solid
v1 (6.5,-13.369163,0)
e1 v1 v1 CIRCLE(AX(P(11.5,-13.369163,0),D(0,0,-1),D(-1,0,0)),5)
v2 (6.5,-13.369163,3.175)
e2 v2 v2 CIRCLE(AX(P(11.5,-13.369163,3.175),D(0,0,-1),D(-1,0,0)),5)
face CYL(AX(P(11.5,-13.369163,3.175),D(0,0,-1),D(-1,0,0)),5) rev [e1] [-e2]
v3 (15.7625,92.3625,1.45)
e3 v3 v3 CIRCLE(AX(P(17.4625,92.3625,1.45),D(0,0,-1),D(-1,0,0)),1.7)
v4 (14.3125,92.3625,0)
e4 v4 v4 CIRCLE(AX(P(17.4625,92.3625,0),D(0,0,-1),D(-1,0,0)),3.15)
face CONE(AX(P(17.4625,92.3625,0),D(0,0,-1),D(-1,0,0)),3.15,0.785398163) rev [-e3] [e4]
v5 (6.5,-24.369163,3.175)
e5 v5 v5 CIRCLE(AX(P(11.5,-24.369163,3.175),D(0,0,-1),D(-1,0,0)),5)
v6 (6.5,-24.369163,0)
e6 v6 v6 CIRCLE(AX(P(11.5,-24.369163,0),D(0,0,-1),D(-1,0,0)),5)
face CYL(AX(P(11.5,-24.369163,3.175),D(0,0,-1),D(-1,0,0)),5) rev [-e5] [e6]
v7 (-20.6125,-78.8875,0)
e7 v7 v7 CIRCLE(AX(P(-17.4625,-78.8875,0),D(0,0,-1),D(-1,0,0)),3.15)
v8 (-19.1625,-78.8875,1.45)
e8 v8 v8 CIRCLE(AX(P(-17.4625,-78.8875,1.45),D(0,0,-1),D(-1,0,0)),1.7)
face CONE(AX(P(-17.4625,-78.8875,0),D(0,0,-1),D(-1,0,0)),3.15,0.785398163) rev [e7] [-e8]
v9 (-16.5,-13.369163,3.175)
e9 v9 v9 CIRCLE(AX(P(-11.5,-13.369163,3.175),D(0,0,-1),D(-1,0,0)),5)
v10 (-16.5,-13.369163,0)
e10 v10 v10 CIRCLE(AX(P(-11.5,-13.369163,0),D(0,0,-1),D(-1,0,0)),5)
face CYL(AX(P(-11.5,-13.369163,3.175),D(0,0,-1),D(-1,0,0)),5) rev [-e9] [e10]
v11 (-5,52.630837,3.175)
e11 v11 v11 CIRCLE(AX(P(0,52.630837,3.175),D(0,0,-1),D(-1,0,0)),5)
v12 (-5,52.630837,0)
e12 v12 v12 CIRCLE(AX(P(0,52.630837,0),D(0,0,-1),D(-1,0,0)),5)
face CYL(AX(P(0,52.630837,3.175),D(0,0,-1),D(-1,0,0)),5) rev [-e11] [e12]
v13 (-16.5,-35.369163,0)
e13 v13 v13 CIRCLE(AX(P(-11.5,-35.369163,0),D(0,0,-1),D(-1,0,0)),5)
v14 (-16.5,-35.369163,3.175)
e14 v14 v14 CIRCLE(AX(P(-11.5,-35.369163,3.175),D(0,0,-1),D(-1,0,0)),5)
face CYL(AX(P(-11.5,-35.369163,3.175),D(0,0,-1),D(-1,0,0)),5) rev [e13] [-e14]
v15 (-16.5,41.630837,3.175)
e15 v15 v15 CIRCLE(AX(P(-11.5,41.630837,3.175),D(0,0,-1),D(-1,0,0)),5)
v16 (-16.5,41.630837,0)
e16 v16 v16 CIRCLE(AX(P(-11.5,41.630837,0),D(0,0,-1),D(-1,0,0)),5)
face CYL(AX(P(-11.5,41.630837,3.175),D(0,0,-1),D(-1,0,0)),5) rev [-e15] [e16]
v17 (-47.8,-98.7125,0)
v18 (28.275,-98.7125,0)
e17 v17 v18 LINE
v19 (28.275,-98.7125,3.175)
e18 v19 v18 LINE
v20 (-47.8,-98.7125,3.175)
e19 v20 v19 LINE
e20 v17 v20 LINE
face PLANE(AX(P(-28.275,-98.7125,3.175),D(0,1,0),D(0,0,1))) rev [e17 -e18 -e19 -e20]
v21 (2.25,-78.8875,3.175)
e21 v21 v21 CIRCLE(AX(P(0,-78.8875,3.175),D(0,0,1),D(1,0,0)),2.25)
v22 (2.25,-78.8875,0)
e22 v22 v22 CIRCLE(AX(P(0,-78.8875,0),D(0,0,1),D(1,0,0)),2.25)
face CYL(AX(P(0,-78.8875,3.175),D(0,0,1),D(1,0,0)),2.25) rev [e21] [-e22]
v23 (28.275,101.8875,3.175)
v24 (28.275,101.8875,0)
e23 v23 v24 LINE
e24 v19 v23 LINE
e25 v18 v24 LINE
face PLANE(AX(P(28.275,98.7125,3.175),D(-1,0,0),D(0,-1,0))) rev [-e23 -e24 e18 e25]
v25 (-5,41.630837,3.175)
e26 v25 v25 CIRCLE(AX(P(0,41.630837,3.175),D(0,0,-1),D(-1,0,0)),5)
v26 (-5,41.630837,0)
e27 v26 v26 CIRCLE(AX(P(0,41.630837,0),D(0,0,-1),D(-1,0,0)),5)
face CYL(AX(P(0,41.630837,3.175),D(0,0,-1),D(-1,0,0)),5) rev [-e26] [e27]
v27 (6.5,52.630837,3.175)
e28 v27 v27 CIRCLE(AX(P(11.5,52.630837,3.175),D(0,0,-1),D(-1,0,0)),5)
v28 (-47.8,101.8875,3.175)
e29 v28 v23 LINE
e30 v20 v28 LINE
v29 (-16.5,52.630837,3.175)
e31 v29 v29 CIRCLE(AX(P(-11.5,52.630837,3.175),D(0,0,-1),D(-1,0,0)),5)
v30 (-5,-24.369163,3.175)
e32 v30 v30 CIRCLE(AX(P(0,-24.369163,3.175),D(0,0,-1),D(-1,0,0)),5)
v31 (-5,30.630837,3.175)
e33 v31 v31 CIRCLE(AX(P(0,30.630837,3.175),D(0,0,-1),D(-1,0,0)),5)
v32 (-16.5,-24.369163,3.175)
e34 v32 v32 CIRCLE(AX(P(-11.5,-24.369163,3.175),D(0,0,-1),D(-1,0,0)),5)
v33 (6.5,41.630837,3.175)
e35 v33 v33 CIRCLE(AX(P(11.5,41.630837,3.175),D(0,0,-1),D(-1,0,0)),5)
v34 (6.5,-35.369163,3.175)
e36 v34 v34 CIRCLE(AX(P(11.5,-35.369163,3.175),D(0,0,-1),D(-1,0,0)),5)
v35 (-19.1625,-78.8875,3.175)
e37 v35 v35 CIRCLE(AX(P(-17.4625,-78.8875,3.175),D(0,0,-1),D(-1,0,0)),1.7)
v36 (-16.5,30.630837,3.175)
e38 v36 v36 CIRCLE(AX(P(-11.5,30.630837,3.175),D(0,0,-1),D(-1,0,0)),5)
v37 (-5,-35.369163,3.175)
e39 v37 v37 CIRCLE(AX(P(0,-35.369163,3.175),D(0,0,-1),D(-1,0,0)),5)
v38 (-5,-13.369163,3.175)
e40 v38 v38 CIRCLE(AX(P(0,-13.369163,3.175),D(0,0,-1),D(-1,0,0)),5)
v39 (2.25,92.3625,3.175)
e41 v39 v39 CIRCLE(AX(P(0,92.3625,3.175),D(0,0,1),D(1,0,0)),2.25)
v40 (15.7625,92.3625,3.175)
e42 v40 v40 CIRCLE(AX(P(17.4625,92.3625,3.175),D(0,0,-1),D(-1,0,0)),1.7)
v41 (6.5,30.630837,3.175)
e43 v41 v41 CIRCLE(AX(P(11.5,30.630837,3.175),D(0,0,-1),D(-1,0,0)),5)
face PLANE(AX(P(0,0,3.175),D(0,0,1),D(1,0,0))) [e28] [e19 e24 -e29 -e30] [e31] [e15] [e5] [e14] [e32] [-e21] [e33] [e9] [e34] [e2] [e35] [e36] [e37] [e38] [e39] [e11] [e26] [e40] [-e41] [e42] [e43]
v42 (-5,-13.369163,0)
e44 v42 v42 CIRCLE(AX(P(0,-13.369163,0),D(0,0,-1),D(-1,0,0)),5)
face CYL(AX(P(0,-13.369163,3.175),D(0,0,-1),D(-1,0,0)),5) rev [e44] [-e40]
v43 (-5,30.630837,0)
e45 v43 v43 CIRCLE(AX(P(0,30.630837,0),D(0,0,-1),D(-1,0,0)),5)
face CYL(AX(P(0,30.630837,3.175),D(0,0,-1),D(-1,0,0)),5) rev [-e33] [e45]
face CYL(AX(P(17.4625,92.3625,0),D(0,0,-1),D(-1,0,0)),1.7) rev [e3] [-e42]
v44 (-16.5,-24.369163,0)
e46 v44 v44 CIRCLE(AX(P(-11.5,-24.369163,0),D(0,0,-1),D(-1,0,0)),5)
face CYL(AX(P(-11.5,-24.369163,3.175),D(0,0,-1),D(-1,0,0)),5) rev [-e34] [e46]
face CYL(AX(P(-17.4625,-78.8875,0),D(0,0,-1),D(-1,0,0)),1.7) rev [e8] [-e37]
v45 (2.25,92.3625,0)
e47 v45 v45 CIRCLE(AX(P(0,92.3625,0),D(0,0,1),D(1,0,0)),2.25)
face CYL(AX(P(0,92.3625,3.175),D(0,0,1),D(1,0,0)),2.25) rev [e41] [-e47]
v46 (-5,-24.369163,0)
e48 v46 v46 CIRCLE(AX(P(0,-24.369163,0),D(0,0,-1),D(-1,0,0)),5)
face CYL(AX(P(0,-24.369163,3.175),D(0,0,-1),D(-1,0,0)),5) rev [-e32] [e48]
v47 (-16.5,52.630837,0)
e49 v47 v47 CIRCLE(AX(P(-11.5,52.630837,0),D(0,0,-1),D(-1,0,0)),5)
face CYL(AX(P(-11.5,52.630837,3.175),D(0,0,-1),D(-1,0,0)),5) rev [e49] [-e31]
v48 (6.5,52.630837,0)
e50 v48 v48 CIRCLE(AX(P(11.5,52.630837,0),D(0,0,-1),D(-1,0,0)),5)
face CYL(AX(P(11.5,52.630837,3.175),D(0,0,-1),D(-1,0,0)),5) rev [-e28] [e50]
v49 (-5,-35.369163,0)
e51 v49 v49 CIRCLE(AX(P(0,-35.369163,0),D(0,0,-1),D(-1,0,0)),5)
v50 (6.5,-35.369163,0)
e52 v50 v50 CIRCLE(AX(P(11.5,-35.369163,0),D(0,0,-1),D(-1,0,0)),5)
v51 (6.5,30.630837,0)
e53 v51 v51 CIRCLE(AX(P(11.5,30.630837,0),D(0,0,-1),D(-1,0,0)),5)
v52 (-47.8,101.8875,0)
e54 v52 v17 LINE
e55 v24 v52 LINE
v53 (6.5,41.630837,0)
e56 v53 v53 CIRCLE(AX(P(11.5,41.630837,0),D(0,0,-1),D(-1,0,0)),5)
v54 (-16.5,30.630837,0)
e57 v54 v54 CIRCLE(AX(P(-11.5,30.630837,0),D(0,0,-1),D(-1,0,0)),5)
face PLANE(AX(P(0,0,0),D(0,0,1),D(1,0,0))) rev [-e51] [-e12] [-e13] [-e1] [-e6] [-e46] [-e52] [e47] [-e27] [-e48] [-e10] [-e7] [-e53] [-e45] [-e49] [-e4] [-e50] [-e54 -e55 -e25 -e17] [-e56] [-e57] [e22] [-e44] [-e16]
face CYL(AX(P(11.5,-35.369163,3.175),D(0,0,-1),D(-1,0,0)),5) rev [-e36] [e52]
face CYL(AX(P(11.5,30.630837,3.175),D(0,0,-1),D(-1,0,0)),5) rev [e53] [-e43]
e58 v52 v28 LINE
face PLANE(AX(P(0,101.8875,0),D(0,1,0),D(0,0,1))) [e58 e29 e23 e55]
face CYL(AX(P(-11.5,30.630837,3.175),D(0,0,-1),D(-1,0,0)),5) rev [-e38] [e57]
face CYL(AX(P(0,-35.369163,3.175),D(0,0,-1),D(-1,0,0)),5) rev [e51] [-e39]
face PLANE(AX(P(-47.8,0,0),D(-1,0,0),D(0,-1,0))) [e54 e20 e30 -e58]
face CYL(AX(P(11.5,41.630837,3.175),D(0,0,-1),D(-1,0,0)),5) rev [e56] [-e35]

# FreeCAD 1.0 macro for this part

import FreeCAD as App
import Part
import Sketcher

V = App.Vector

doc = App.newDocument("Part")
body = doc.addObject("PartDesign::Body", "Body")

sketch1 = body.newObject("Sketcher::SketchObject", "Sketch")
sketch1.AttachmentSupport = (doc.getObject("XY_Plane"), [""])
sketch1.MapMode = "FlatFace"
sketch1.addGeometry([
    Part.LineSegment(V(-28, 99, 0), V(-28, -99, 0)),
    Part.LineSegment(V(-28, -99, 0), V(28, -99, 0)),
    Part.LineSegment(V(28, -99, 0), V(28, 99, 0)),
    Part.LineSegment(V(28, 99, 0), V(-28, 99, 0)),
], False)
sketch1.addConstraint([
    Sketcher.Constraint("Coincident", 0, 2, 1, 1),
    Sketcher.Constraint("Coincident", 1, 2, 2, 1),
    Sketcher.Constraint("Coincident", 2, 2, 3, 1),
    Sketcher.Constraint("Coincident", 3, 2, 0, 1),
    Sketcher.Constraint("Vertical", 0),
    Sketcher.Constraint("Horizontal", 1),
    Sketcher.Constraint("Vertical", 2),
    Sketcher.Constraint("Horizontal", 3),
    Sketcher.Constraint("Symmetric", 0, 2, 2, 2, -1, 1),
    Sketcher.Constraint("DistanceX", 1, 1, 1, 2, 56.55),
    Sketcher.Constraint("DistanceY", 0, 2, 0, 1, 197.425),
])
pad1 = body.newObject("PartDesign::Pad", "Pad")
pad1.Profile = sketch1
pad1.Length = 3.175

sketch2 = body.newObject("Sketcher::SketchObject", "Sketch001")
sketch2.AttachmentSupport = (doc.getObject("XY_Plane"), [""])
sketch2.MapMode = "FlatFace"
sketch2.addGeometry([
    Part.Circle(V(12, 31, 0), V(0, 0, 1), 5),
    Part.Circle(V(12, 53, 0), V(0, 0, 1), 5),
    Part.Circle(V(12, 42, 0), V(0, 0, 1), 5),
    Part.Circle(V(0, 53, 0), V(0, 0, 1), 5),
    Part.Circle(V(0, 42, 0), V(0, 0, 1), 5),
    Part.Circle(V(0, 31, 0), V(0, 0, 1), 5),
    Part.Circle(V(-12, 31, 0), V(0, 0, 1), 5),
    Part.Circle(V(-12, 42, 0), V(0, 0, 1), 5),
    Part.Circle(V(-12, 53, 0), V(0, 0, 1), 5),
    Part.Circle(V(12, -35, 0), V(0, 0, 1), 5),
    Part.Circle(V(12, -13, 0), V(0, 0, 1), 5),
    Part.Circle(V(12, -24, 0), V(0, 0, 1), 5),
    Part.Circle(V(0, -13, 0), V(0, 0, 1), 5),
    Part.Circle(V(0, -24, 0), V(0, 0, 1), 5),
    Part.Circle(V(0, -35, 0), V(0, 0, 1), 5),
    Part.Circle(V(-12, -35, 0), V(0, 0, 1), 5),
    Part.Circle(V(-12, -13, 0), V(0, 0, 1), 5),
    Part.Circle(V(-12, -24, 0), V(0, 0, 1), 5),
], False)
sketch2.addConstraint([
    Sketcher.Constraint("Equal", 0, 1),
    Sketcher.Constraint("Equal", 1, 2),
    Sketcher.Constraint("Equal", 2, 3),
    Sketcher.Constraint("Equal", 3, 4),
    Sketcher.Constraint("Equal", 4, 5),
    Sketcher.Constraint("Equal", 5, 6),
    Sketcher.Constraint("Equal", 6, 7),
    Sketcher.Constraint("Equal", 7, 8),
    Sketcher.Constraint("Equal", 8, 9),
    Sketcher.Constraint("Equal", 9, 10),
    Sketcher.Constraint("Equal", 10, 11),
    Sketcher.Constraint("Equal", 11, 12),
    Sketcher.Constraint("Equal", 12, 13),
    Sketcher.Constraint("Equal", 13, 14),
    Sketcher.Constraint("Equal", 14, 15),
    Sketcher.Constraint("Equal", 15, 16),
    Sketcher.Constraint("Equal", 16, 17),
    Sketcher.Constraint("Symmetric", 0, 3, 6, 3, -2),
    Sketcher.Constraint("Symmetric", 2, 3, 7, 3, -2),
    Sketcher.Constraint("Symmetric", 1, 3, 8, 3, -2),
    Sketcher.Constraint("Symmetric", 9, 3, 15, 3, -2),
    Sketcher.Constraint("Symmetric", 10, 3, 16, 3, -2),
    Sketcher.Constraint("Symmetric", 11, 3, 17, 3, -2),
    Sketcher.Constraint("PointOnObject", 3, 3, -2),
    Sketcher.Constraint("PointOnObject", 4, 3, -2),
    Sketcher.Constraint("PointOnObject", 5, 3, -2),
    Sketcher.Constraint("PointOnObject", 12, 3, -2),
    Sketcher.Constraint("PointOnObject", 13, 3, -2),
    Sketcher.Constraint("PointOnObject", 14, 3, -2),
    Sketcher.Constraint("Horizontal", 1, 3, 3, 3),
    Sketcher.Constraint("Horizontal", 2, 3, 4, 3),
    Sketcher.Constraint("Horizontal", 0, 3, 5, 3),
    Sketcher.Constraint("Horizontal", 10, 3, 12, 3),
    Sketcher.Constraint("Horizontal", 11, 3, 13, 3),
    Sketcher.Constraint("Horizontal", 9, 3, 14, 3),
    Sketcher.Constraint("Vertical", 0, 3, 1, 3),
    Sketcher.Constraint("Vertical", 1, 3, 2, 3),
    Sketcher.Constraint("Vertical", 2, 3, 9, 3),
    Sketcher.Constraint("Vertical", 9, 3, 10, 3),
    Sketcher.Constraint("Vertical", 10, 3, 11, 3),
    Sketcher.Constraint("Diameter", 0, 10.0),
    Sketcher.Constraint("DistanceY", 0, 3, 1, 3, 22.0),
    Sketcher.Constraint("DistanceY", 2, 3, 1, 3, 11.0),
    Sketcher.Constraint("DistanceX", 6, 3, 0, 3, 23.0),
    Sketcher.Constraint("DistanceY", 9, 3, 0, 3, 66.0),
    Sketcher.Constraint("DistanceY", 9, 3, 10, 3, 22.0),
    Sketcher.Constraint("DistanceY", 9, 3, 11, 3, 11.0),
    Sketcher.Constraint("DistanceY", -1, 1, 0, 3, 30.630837),
])
pocket1 = body.newObject("PartDesign::Pocket", "Pocket")
pocket1.Profile = sketch2
pocket1.Type = "ThroughAll"
pocket1.Reversed = True

sketch3 = body.newObject("Sketcher::SketchObject", "Sketch002")
sketch3.AttachmentSupport = (doc.getObject("YZ_Plane"), [""])
sketch3.MapMode = "FlatFace"
sketch3.AttachmentOffset = App.Placement(V(0, 0, -28.275), App.Rotation())
sketch3.addGeometry([
    Part.LineSegment(V(98.7, 0, 0), V(-98.7, 0, 0)),
    Part.LineSegment(V(-98.7, 0, 0), V(-98.7, 3.2, 0)),
    Part.LineSegment(V(-98.7, 3.2, 0), V(98.7, 3.2, 0)),
    Part.LineSegment(V(98.7, 3.2, 0), V(98.7, 0, 0)),
], False)
sketch3.addConstraint([
    Sketcher.Constraint("Coincident", 0, 2, 1, 1),
    Sketcher.Constraint("Coincident", 1, 2, 2, 1),
    Sketcher.Constraint("Coincident", 2, 2, 3, 1),
    Sketcher.Constraint("Coincident", 3, 2, 0, 1),
    Sketcher.Constraint("Horizontal", 0),
    Sketcher.Constraint("Vertical", 1),
    Sketcher.Constraint("Horizontal", 2),
    Sketcher.Constraint("Vertical", 3),
    Sketcher.Constraint("Symmetric", 0, 2, 3, 2, -1, 1),
    Sketcher.Constraint("DistanceX", 0, 2, 0, 1, 197.425),
    Sketcher.Constraint("DistanceY", 1, 1, 1, 2, 3.175),
])
pad2 = body.newObject("PartDesign::Pad", "Pad001")
pad2.Profile = sketch3
pad2.Length = 19.525
pad2.Reversed = True

sketch4 = body.newObject("Sketcher::SketchObject", "Sketch003")
sketch4.AttachmentSupport = (doc.getObject("XZ_Plane"), [""])
sketch4.MapMode = "FlatFace"
sketch4.AttachmentOffset = App.Placement(V(0, 0, -98.7125), App.Rotation())
sketch4.addGeometry([
    Part.LineSegment(V(-47.8, 0, 0), V(-47.8, 3.2, 0)),
    Part.LineSegment(V(-47.8, 3.2, 0), V(28.3, 3.2, 0)),
    Part.LineSegment(V(28.3, 3.2, 0), V(28.3, 0, 0)),
    Part.LineSegment(V(28.3, 0, 0), V(-47.8, 0, 0)),
], False)
sketch4.addConstraint([
    Sketcher.Constraint("Coincident", 0, 2, 1, 1),
    Sketcher.Constraint("Coincident", 1, 2, 2, 1),
    Sketcher.Constraint("Coincident", 2, 2, 3, 1),
    Sketcher.Constraint("Coincident", 3, 2, 0, 1),
    Sketcher.Constraint("Vertical", 0),
    Sketcher.Constraint("Horizontal", 1),
    Sketcher.Constraint("Vertical", 2),
    Sketcher.Constraint("Horizontal", 3),
    Sketcher.Constraint("PointOnObject", 2, 2, -1),
    Sketcher.Constraint("DistanceX", 0, 2, -1, 1, 47.8),
    Sketcher.Constraint("DistanceX", 1, 1, 1, 2, 76.075),
    Sketcher.Constraint("DistanceY", 0, 1, 0, 2, 3.175),
])
pad3 = body.newObject("PartDesign::Pad", "Pad002")
pad3.Profile = sketch4
pad3.Length = 3.175
pad3.Reversed = True

sketch5 = body.newObject("Sketcher::SketchObject", "Sketch004")
sketch5.AttachmentSupport = (doc.getObject("XY_Plane"), [""])
sketch5.MapMode = "FlatFace"
sketch5.AttachmentOffset = App.Placement(V(0, 0, 3.175), App.Rotation())
sketch5.addGeometry([
    Part.Circle(V(0, 92.4, 0), V(0, 0, 1), 2.2),
    Part.Circle(V(0, -78.9, 0), V(0, 0, 1), 2.2),
], False)
sketch5.addConstraint([
    Sketcher.Constraint("Equal", 0, 1),
    Sketcher.Constraint("PointOnObject", 0, 3, -2),
    Sketcher.Constraint("PointOnObject", 1, 3, -2),
    Sketcher.Constraint("Diameter", 0, 4.5),
    Sketcher.Constraint("DistanceY", 1, 3, 0, 3, 171.25),
    Sketcher.Constraint("DistanceY", -1, 1, 0, 3, 92.3625),
])
doc.recompute()
hole = body.newObject("PartDesign::Hole", "Hole")
hole.Profile = sketch5
hole.ThreadType = "None"
hole.Diameter = 4.5
hole.DepthType = "ThroughAll"

sketch6 = body.newObject("Sketcher::SketchObject", "Sketch005")
sketch6.AttachmentSupport = (doc.getObject("XY_Plane"), [""])
sketch6.MapMode = "FlatFace"
sketch6.addGeometry([
    Part.Circle(V(-17.5, -78.9, 0), V(0, 0, 1), 1.7),
    Part.Circle(V(17.5, 92.4, 0), V(0, 0, 1), 1.7),
], False)
sketch6.addConstraint([
    Sketcher.Constraint("Equal", 0, 1),
    Sketcher.Constraint("Diameter", 0, 3.4),
    Sketcher.Constraint("DistanceY", 0, 3, 1, 3, 171.25),
    Sketcher.Constraint("DistanceX", 0, 3, 1, 3, 34.925),
    Sketcher.Constraint("DistanceX", 0, 3, -1, 1, 17.4625),
    Sketcher.Constraint("DistanceY", 0, 3, -1, 1, 78.8875),
])
doc.recompute()
hole2 = body.newObject("PartDesign::Hole", "Hole001")
hole2.Profile = sketch6
hole2.ThreadType = "None"
hole2.Diameter = 3.4
hole2.DepthType = "ThroughAll"
hole2.HoleCutType = "Countersink"
hole2.HoleCutDiameter = 6.3
hole2.HoleCutCountersinkAngle = 90
hole2.Reversed = True

doc.recompute()
